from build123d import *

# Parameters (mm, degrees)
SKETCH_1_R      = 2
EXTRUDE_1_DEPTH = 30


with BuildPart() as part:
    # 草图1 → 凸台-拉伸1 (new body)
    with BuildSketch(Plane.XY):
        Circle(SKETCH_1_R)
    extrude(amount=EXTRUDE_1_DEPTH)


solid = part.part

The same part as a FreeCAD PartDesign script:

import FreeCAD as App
import Part
import Sketcher
Q = App.Units.Quantity

doc = App.newDocument("Part")
params = doc.addObject("Spreadsheet::Sheet", "Params")
for row, (alias, value) in enumerate([
    ("sketch1_diameter", "4 mm"),
    ("pad1_length", "30 mm"),
], start=1):
    params.set(f"A{row}", alias)
    params.set(f"B{row}", "=" + value)
    params.setAlias(f"B{row}", alias)

body = doc.addObject("PartDesign::Body", "Body")

sketch1 = doc.addObject("Sketcher::SketchObject", "Sketch")
body.addObject(sketch1)
sketch1.AttachmentSupport = (doc.XY_Plane, [""])
sketch1.MapMode = "FlatFace"
sketch1.addGeometry(Part.Circle(App.Vector(0, 0, 0), App.Vector(0, 0, 1), 2), False)
sketch1.addConstraint([
    Sketcher.Constraint("Coincident", 0, 3, -1, 1),
    Sketcher.Constraint("Diameter", 0, Q("4 mm")),
])
sketch1.setExpression("Constraints[1]", "Params.sketch1_diameter")
pad1 = doc.addObject("PartDesign::Pad", "Pad")
body.addObject(pad1)
pad1.Profile = sketch1
pad1.setExpression("Length", "Params.pad1_length")

doc.recompute()
